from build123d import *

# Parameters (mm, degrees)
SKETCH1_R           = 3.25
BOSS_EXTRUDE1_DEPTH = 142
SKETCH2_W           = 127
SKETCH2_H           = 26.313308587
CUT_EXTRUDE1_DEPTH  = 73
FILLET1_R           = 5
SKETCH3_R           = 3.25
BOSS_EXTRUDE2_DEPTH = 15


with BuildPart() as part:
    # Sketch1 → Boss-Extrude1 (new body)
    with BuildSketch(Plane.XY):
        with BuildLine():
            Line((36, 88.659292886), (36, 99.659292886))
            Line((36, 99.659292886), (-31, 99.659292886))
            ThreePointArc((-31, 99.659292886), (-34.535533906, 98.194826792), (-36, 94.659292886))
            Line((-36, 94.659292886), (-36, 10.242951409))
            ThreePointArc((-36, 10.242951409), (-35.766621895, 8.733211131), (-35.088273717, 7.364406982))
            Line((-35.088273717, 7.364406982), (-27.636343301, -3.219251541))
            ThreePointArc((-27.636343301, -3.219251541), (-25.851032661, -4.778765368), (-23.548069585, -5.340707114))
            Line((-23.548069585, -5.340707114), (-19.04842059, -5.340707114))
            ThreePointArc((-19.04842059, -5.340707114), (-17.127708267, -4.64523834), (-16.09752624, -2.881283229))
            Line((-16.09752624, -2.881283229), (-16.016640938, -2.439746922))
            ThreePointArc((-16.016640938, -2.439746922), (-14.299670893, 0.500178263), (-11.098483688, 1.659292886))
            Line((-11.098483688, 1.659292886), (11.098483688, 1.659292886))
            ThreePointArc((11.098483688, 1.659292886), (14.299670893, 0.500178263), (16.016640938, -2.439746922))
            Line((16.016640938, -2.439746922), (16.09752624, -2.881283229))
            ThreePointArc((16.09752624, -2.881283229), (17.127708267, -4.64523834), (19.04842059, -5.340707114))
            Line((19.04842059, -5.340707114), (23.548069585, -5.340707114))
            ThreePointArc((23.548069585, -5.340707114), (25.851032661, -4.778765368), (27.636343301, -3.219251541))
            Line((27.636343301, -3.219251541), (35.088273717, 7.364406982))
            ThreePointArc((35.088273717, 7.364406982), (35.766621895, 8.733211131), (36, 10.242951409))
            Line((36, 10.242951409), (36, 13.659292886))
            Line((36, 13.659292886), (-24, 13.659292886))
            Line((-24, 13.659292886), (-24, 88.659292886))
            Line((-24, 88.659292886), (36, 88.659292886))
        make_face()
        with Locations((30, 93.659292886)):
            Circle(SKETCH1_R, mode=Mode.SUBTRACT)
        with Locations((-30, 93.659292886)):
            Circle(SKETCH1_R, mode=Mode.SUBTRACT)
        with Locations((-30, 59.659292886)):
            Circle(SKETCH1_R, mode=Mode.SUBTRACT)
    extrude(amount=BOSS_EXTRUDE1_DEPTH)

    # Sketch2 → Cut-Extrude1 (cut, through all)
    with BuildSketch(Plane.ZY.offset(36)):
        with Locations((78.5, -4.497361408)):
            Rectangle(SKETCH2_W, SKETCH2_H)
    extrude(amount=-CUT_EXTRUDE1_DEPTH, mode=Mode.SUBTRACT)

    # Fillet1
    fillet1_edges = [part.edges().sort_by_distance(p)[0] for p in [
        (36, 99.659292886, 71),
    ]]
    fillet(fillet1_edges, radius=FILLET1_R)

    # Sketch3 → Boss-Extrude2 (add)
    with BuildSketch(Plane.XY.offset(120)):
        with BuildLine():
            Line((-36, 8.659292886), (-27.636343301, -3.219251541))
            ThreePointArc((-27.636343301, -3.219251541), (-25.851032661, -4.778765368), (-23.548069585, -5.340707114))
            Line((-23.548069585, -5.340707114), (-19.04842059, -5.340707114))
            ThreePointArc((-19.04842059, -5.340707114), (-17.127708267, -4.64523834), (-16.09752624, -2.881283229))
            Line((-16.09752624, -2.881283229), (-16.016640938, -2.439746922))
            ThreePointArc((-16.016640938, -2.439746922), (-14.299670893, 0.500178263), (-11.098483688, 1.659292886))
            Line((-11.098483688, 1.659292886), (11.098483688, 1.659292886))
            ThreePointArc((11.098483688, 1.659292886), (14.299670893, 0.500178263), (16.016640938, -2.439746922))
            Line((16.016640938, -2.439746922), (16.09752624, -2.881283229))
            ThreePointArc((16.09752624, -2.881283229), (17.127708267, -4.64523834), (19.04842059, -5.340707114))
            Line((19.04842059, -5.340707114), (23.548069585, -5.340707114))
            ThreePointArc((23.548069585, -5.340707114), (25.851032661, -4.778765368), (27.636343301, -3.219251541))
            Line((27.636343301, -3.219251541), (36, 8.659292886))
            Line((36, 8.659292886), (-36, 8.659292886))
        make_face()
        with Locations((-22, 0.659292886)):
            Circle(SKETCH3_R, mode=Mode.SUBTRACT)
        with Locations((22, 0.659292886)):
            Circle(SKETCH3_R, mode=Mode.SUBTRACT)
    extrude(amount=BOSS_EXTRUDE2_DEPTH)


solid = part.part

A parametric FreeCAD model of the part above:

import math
import FreeCAD as App
import Part
import Sketcher
Q = App.Units.Quantity


def edges_at(feature, points):
    """Names of the edges that pass closest to the given points."""
    edges = feature.Shape.Edges
    near = lambda p: min(range(len(edges)), key=lambda i: edges[i].distToShape(Part.Vertex(*p))[0])
    return sorted({f"Edge{near(p) + 1}" for p in points})


def add_polygon(sketch, points):
    """Adds a closed chain of lines whose ends are joined by coincident constraints."""
    first, n = sketch.GeometryCount, len(points)
    for a, b in zip(points, points[1:] + points[:1]):
        sketch.addGeometry(Part.LineSegment(App.Vector(*a, 0), App.Vector(*b, 0)), False)
    for i in range(n):
        sketch.addConstraint(Sketcher.Constraint("Coincident", first + i, 2, first + (i + 1) % n, 1))

doc = App.newDocument("Part")
body = doc.addObject("PartDesign::Body", "Body")

# Sketch on XY plane
sketch1 = body.newObject("Sketcher::SketchObject", "Sketch")
sketch1.AttachmentSupport = (doc.getObject("XY_Plane"), [""])
sketch1.MapMode = "FlatFace"
sketch1.addGeometry([
    Part.LineSegment(App.Vector(36, 88.66, 0), App.Vector(36, 99.66, 0)),  # 0
    Part.LineSegment(App.Vector(36, 99.66, 0), App.Vector(-31, 99.66, 0)),  # 1
    Part.ArcOfCircle(Part.Circle(App.Vector(-31, 94.66, 0), App.Vector(0, 0, 1), 5), math.radians(90), math.radians(180)),  # 2
    Part.LineSegment(App.Vector(-36, 94.66, 0), App.Vector(-36, 10.24, 0)),  # 3
    Part.ArcOfCircle(Part.Circle(App.Vector(-31, 10.24, 0), App.Vector(0, 0, 1), 5), math.radians(-180), math.radians(-145)),  # 4
    Part.LineSegment(App.Vector(-35.09, 7.36, 0), App.Vector(-27.64, -3.22, 0)),  # 5
    Part.ArcOfCircle(Part.Circle(App.Vector(-23.55, -0.34, 0), App.Vector(0, 0, 1), 5), math.radians(-145), math.radians(-90)),  # 6
    Part.LineSegment(App.Vector(-23.55, -5.34, 0), App.Vector(-19.05, -5.34, 0)),  # 7
    Part.ArcOfCircle(Part.Circle(App.Vector(-19.05, -2.34, 0), App.Vector(0, 0, 1), 3), math.radians(-90), math.radians(-10)),  # 8
    Part.LineSegment(App.Vector(-16.1, -2.88, 0), App.Vector(-16.02, -2.44, 0)),  # 9
    Part.ArcOfCircle(Part.Circle(App.Vector(-11.1, -3.34, 0), App.Vector(0, 0, 1), 5), math.radians(90), math.radians(170)),  # 10
    Part.LineSegment(App.Vector(-11.1, 1.66, 0), App.Vector(11.1, 1.66, 0)),  # 11
    Part.ArcOfCircle(Part.Circle(App.Vector(11.1, -3.34, 0), App.Vector(0, 0, 1), 5), math.radians(10), math.radians(90)),  # 12
    Part.LineSegment(App.Vector(16.02, -2.44, 0), App.Vector(16.1, -2.88, 0)),  # 13
    Part.ArcOfCircle(Part.Circle(App.Vector(19.05, -2.34, 0), App.Vector(0, 0, 1), 3), math.radians(-170), math.radians(-90)),  # 14
    Part.LineSegment(App.Vector(19.05, -5.34, 0), App.Vector(23.55, -5.34, 0)),  # 15
    Part.ArcOfCircle(Part.Circle(App.Vector(23.55, -0.34, 0), App.Vector(0, 0, 1), 5), math.radians(-90), math.radians(-35)),  # 16
    Part.LineSegment(App.Vector(27.64, -3.22, 0), App.Vector(35.09, 7.36, 0)),  # 17
    Part.ArcOfCircle(Part.Circle(App.Vector(31, 10.24, 0), App.Vector(0, 0, 1), 5), math.radians(-35), math.radians(0)),  # 18
    Part.LineSegment(App.Vector(36, 10.24, 0), App.Vector(36, 13.66, 0)),  # 19
    Part.LineSegment(App.Vector(36, 13.66, 0), App.Vector(-24, 13.66, 0)),  # 20
    Part.LineSegment(App.Vector(-24, 13.66, 0), App.Vector(-24, 88.66, 0)),  # 21
    Part.LineSegment(App.Vector(-24, 88.66, 0), App.Vector(36, 88.66, 0)),  # 22
    Part.Circle(App.Vector(-30, 59.66, 0), App.Vector(0, 0, 1), 3.25),  # 23
    Part.Circle(App.Vector(-30, 93.66, 0), App.Vector(0, 0, 1), 3.25),  # 24
    Part.Circle(App.Vector(30, 93.66, 0), App.Vector(0, 0, 1), 3.25),  # 25
], False)
sketch1.addConstraint([
    Sketcher.Constraint("Coincident", 0, 2, 1, 1),
    Sketcher.Constraint("Tangent", 1, 2, 2, 1),
    Sketcher.Constraint("Tangent", 2, 2, 3, 1),
    Sketcher.Constraint("Tangent", 3, 2, 4, 1),
    Sketcher.Constraint("Tangent", 4, 2, 5, 1),
    Sketcher.Constraint("Tangent", 5, 2, 6, 1),
    Sketcher.Constraint("Tangent", 6, 2, 7, 1),
    Sketcher.Constraint("Tangent", 7, 2, 8, 1),
    Sketcher.Constraint("Tangent", 8, 2, 9, 1),
    Sketcher.Constraint("Tangent", 9, 2, 10, 2),
    Sketcher.Constraint("Tangent", 10, 1, 11, 1),
    Sketcher.Constraint("Tangent", 11, 2, 12, 2),
    Sketcher.Constraint("Tangent", 12, 1, 13, 1),
    Sketcher.Constraint("Tangent", 13, 2, 14, 1),
    Sketcher.Constraint("Tangent", 14, 2, 15, 1),
    Sketcher.Constraint("Tangent", 15, 2, 16, 1),
    Sketcher.Constraint("Tangent", 16, 2, 17, 1),
    Sketcher.Constraint("Tangent", 17, 2, 18, 1),
    Sketcher.Constraint("Tangent", 18, 2, 19, 1),
    Sketcher.Constraint("Coincident", 19, 2, 20, 1),
    Sketcher.Constraint("Coincident", 20, 2, 21, 1),
    Sketcher.Constraint("Coincident", 21, 2, 22, 1),
    Sketcher.Constraint("Coincident", 22, 2, 0, 1),
    Sketcher.Constraint("Vertical", 0),
    Sketcher.Constraint("Horizontal", 1),
    Sketcher.Constraint("Vertical", 3),
    Sketcher.Constraint("Horizontal", 7),
    Sketcher.Constraint("Horizontal", 11),
    Sketcher.Constraint("Horizontal", 15),
    Sketcher.Constraint("Vertical", 19),
    Sketcher.Constraint("Horizontal", 20),
    Sketcher.Constraint("Vertical", 21),
    Sketcher.Constraint("Horizontal", 22),
    Sketcher.Constraint("Equal", 2, 4),
    Sketcher.Constraint("Equal", 4, 6),
    Sketcher.Constraint("Equal", 6, 10),
    Sketcher.Constraint("Equal", 10, 12),
    Sketcher.Constraint("Equal", 8, 14),
    Sketcher.Constraint("Equal", 12, 16),
    Sketcher.Constraint("Equal", 16, 18),
    Sketcher.Constraint("Equal", 23, 24),
    Sketcher.Constraint("Equal", 24, 25),
    Sketcher.Constraint("Symmetric", 8, 3, 14, 3, -2),
    Sketcher.Constraint("Symmetric", 4, 3, 18, 3, -2),
    Sketcher.Constraint("Symmetric", 24, 3, 25, 3, -2),
    Sketcher.Constraint("Horizontal", 9, 2, 12, 1),
    Sketcher.Constraint("Horizontal", 5, 2, 16, 2),
    Sketcher.Constraint("Vertical", 23, 3, 24, 3),
    Sketcher.Constraint("Vertical", 0, 2, 18, 2),
    Sketcher.Constraint("Radius", 2, Q("5 mm")),
    Sketcher.Constraint("Radius", 8, Q("3 mm")),
    Sketcher.Constraint("Diameter", 23, Q("6.5 mm")),
    Sketcher.Constraint("DistanceX", 1, 2, 1, 1, Q("67 mm")),
    Sketcher.Constraint("DistanceX", 20, 2, 20, 1, Q("60 mm")),
    Sketcher.Constraint("DistanceY", 0, 1, 0, 2, Q("11 mm")),
    Sketcher.Constraint("DistanceY", 21, 1, 21, 2, Q("75 mm")),
    Sketcher.Constraint("DistanceX", 23, 3, -1, 1, Q("30 mm")),
    Sketcher.Constraint("DistanceY", 6, 3, 2, 3, Q("95 mm")),
    Sketcher.Constraint("DistanceY", 10, 3, 8, 3, Q("1 mm")),
    Sketcher.Constraint("DistanceY", 23, 3, 2, 3, Q("35 mm")),
    Sketcher.Constraint("DistanceY", 24, 3, 2, 3, Q("1 mm")),
    Sketcher.Constraint("DistanceX", 7, 1, 7, 2, Q("4.499649 mm")),
    Sketcher.Constraint("DistanceY", 3, 2, 3, 1, Q("84.416341 mm")),
    Sketcher.Constraint("DistanceY", 12, 1, 18, 3, Q("12.682698 mm")),
    Sketcher.Constraint("Distance", 5, Q("12.943921 mm")),
    Sketcher.Constraint("DistanceY", -1, 1, 4, 3, Q("10.242951 mm")),
])
pad1 = body.newObject("PartDesign::Pad", "Pad")
pad1.Profile = sketch1
pad1.Length = 142

# Sketch on YZ plane
sketch2 = body.newObject("Sketcher::SketchObject", "Sketch001")
sketch2.AttachmentSupport = (doc.getObject("YZ_Plane"), [""])
sketch2.MapMode = "FlatFace"
sketch2.AttachmentOffset = App.Placement(App.Vector(0, 0, -36), App.Rotation())
add_polygon(sketch2, [(9, 15), (-18, 15), (-18, 142), (9, 142)])  # lines 0-3
sketch2.addConstraint([
    Sketcher.Constraint("Horizontal", 0),
    Sketcher.Constraint("Vertical", 1),
    Sketcher.Constraint("Horizontal", 2),
    Sketcher.Constraint("Vertical", 3),
    Sketcher.Constraint("DistanceY", 1, 1, 1, 2, Q("127 mm")),
    Sketcher.Constraint("DistanceY", -1, 1, 0, 2, Q("15 mm")),
    Sketcher.Constraint("DistanceX", 0, 2, 0, 1, Q("26.313309 mm")),
    Sketcher.Constraint("DistanceX", 0, 2, -1, 1, Q("17.654016 mm")),
])
pocket1 = body.newObject("PartDesign::Pocket", "Pocket")
pocket1.Profile = sketch2
pocket1.Type = "ThroughAll"
pocket1.Reversed = True
doc.recompute()

fillet = body.newObject("PartDesign::Fillet", "Fillet")
fillet.Base = (pocket1, edges_at(pocket1, [(36, 99.659, 71)]))
fillet.Radius = 5

# Sketch on XY plane
sketch3 = body.newObject("Sketcher::SketchObject", "Sketch002")
sketch3.AttachmentSupport = (doc.getObject("XY_Plane"), [""])
sketch3.MapMode = "FlatFace"
sketch3.AttachmentOffset = App.Placement(App.Vector(0, 0, 120), App.Rotation())
sketch3.addGeometry([
    Part.LineSegment(App.Vector(-36, 8.66, 0), App.Vector(-27.64, -3.22, 0)),  # 0
    Part.ArcOfCircle(Part.Circle(App.Vector(-23.55, -0.34, 0), App.Vector(0, 0, 1), 5), math.radians(-145), math.radians(-90)),  # 1
    Part.LineSegment(App.Vector(-23.55, -5.34, 0), App.Vector(-19.05, -5.34, 0)),  # 2
    Part.ArcOfCircle(Part.Circle(App.Vector(-19.05, -2.34, 0), App.Vector(0, 0, 1), 3), math.radians(-90), math.radians(-10)),  # 3
    Part.LineSegment(App.Vector(-16.1, -2.88, 0), App.Vector(-16.02, -2.44, 0)),  # 4
    Part.ArcOfCircle(Part.Circle(App.Vector(-11.1, -3.34, 0), App.Vector(0, 0, 1), 5), math.radians(90), math.radians(170)),  # 5
    Part.LineSegment(App.Vector(-11.1, 1.66, 0), App.Vector(11.1, 1.66, 0)),  # 6
    Part.ArcOfCircle(Part.Circle(App.Vector(11.1, -3.34, 0), App.Vector(0, 0, 1), 5), math.radians(10), math.radians(90)),  # 7
    Part.LineSegment(App.Vector(16.02, -2.44, 0), App.Vector(16.1, -2.88, 0)),  # 8
    Part.ArcOfCircle(Part.Circle(App.Vector(19.05, -2.34, 0), App.Vector(0, 0, 1), 3), math.radians(-170), math.radians(-90)),  # 9
    Part.LineSegment(App.Vector(19.05, -5.34, 0), App.Vector(23.55, -5.34, 0)),  # 10
    Part.ArcOfCircle(Part.Circle(App.Vector(23.55, -0.34, 0), App.Vector(0, 0, 1), 5), math.radians(-90), math.radians(-35)),  # 11
    Part.LineSegment(App.Vector(27.64, -3.22, 0), App.Vector(36, 8.66, 0)),  # 12
    Part.LineSegment(App.Vector(36, 8.66, 0), App.Vector(-36, 8.66, 0)),  # 13
    Part.Circle(App.Vector(-22, 0.66, 0), App.Vector(0, 0, 1), 3.25),  # 14
    Part.Circle(App.Vector(22, 0.66, 0), App.Vector(0, 0, 1), 3.25),  # 15
], False)
sketch3.addConstraint([
    Sketcher.Constraint("Tangent", 0, 2, 1, 1),
    Sketcher.Constraint("Tangent", 1, 2, 2, 1),
    Sketcher.Constraint("Tangent", 2, 2, 3, 1),
    Sketcher.Constraint("Tangent", 3, 2, 4, 1),
    Sketcher.Constraint("Tangent", 4, 2, 5, 2),
    Sketcher.Constraint("Tangent", 5, 1, 6, 1),
    Sketcher.Constraint("Tangent", 6, 2, 7, 2),
    Sketcher.Constraint("Tangent", 7, 1, 8, 1),
    Sketcher.Constraint("Tangent", 8, 2, 9, 1),
    Sketcher.Constraint("Tangent", 9, 2, 10, 1),
    Sketcher.Constraint("Tangent", 10, 2, 11, 1),
    Sketcher.Constraint("Tangent", 11, 2, 12, 1),
    Sketcher.Constraint("Coincident", 12, 2, 13, 1),
    Sketcher.Constraint("Coincident", 13, 2, 0, 1),
    Sketcher.Constraint("Horizontal", 2),
    Sketcher.Constraint("Horizontal", 6),
    Sketcher.Constraint("Horizontal", 10),
    Sketcher.Constraint("Horizontal", 13),
    Sketcher.Constraint("Equal", 1, 5),
    Sketcher.Constraint("Equal", 5, 7),
    Sketcher.Constraint("Equal", 3, 9),
    Sketcher.Constraint("Equal", 7, 11),
    Sketcher.Constraint("Equal", 14, 15),
    Sketcher.Constraint("Symmetric", 3, 3, 9, 3, -2),
    Sketcher.Constraint("Symmetric", 14, 3, 15, 3, -2),
    Sketcher.Constraint("Symmetric", 0, 2, 11, 2, -2),
    Sketcher.Constraint("Horizontal", 4, 2, 7, 1),
    Sketcher.Constraint("Radius", 1, Q("5 mm")),
    Sketcher.Constraint("Radius", 3, Q("3 mm")),
    Sketcher.Constraint("Diameter", 14, Q("6.5 mm")),
    Sketcher.Constraint("DistanceX", 13, 2, 13, 1, Q("72 mm")),
    Sketcher.Constraint("DistanceX", 14, 3, -1, 1, Q("22 mm")),
    Sketcher.Constraint("DistanceY", 5, 3, 3, 3, Q("1 mm")),
    Sketcher.Constraint("DistanceY", 1, 3, 14, 3, Q("1 mm")),
    Sketcher.Constraint("DistanceY", 11, 3, 12, 2, Q("9 mm")),
    Sketcher.Constraint("DistanceX", 2, 1, 2, 2, Q("4.499649 mm")),
    Sketcher.Constraint("Distance", 0, Q("14.52758 mm")),
    Sketcher.Constraint("DistanceX", 6, 1, 6, 2, Q("22.196967 mm")),
    Sketcher.Constraint("DistanceY", 0, 2, -1, 1, Q("3.219252 mm")),
])
pad2 = body.newObject("PartDesign::Pad", "Pad001")
pad2.Profile = sketch3
pad2.Length = 15

doc.recompute()
